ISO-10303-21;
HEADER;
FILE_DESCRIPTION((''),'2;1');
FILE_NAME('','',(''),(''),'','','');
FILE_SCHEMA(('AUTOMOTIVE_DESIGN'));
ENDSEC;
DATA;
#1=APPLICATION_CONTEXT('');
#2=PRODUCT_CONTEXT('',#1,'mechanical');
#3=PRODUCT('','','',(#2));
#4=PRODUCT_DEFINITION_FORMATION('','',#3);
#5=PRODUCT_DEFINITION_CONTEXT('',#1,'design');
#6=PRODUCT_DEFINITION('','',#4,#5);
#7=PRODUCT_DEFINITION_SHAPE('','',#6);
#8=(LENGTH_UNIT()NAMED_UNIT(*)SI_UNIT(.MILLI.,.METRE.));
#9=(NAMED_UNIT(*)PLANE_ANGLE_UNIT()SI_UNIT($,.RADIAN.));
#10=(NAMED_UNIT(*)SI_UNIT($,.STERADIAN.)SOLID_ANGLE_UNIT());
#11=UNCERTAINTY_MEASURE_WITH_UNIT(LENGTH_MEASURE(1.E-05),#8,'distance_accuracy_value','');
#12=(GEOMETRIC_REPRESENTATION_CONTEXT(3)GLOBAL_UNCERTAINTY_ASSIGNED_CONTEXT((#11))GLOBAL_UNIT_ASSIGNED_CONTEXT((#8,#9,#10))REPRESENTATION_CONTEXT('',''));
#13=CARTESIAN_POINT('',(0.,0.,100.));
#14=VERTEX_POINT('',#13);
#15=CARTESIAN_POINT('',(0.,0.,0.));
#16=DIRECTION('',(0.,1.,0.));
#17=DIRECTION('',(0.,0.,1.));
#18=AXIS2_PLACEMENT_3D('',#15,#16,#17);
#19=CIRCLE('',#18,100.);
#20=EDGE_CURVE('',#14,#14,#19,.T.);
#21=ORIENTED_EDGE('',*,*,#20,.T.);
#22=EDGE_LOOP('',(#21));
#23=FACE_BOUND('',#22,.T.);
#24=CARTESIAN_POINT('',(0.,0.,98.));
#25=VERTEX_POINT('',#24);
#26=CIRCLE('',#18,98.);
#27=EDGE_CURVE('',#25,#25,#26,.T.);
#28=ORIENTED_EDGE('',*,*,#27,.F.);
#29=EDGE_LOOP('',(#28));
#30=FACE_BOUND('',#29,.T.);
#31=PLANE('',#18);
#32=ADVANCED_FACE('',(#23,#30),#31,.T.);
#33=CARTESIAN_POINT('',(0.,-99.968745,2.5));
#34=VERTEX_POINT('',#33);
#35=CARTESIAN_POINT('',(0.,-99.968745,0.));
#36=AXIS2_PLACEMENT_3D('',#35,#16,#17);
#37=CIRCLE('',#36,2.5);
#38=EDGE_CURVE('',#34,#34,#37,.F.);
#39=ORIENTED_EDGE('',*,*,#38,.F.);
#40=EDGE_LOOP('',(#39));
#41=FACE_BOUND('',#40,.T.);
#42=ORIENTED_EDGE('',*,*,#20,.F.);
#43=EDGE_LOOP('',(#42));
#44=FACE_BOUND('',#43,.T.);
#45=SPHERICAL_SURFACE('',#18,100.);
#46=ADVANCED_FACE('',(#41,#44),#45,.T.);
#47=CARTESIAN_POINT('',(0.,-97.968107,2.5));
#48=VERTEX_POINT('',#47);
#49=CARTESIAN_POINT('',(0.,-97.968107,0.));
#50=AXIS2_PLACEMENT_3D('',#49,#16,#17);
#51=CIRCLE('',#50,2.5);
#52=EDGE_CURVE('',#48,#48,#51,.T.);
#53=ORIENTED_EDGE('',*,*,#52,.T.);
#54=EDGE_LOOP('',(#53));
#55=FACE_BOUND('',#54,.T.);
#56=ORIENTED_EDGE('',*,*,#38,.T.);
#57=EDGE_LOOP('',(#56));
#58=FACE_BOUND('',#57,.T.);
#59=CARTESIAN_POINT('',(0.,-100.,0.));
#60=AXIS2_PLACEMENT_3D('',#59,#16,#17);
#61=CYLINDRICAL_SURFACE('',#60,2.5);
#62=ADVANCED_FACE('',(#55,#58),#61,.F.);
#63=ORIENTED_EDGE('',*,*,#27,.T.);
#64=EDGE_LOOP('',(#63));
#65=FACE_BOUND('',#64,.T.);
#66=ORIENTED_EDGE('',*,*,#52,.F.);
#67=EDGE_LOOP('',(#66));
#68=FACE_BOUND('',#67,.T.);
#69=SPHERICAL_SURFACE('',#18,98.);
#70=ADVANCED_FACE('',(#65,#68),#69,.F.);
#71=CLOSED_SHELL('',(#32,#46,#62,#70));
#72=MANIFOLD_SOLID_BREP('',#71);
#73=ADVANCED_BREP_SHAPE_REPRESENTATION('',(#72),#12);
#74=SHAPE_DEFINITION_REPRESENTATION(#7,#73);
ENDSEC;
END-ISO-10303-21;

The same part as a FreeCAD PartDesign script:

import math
import FreeCAD as App
import Part
import Sketcher
Q = App.Units.Quantity

doc = App.newDocument("Part")
body = doc.addObject("PartDesign::Body", "Body")

sketch1 = body.newObject("Sketcher::SketchObject", "Sketch")
sketch1.AttachmentSupport = (doc.getObject("XY_Plane"), [""])
sketch1.MapMode = "FlatFace"
sketch1.addGeometry([
    Part.LineSegment(App.Vector(-98, 0, 0), App.Vector(-100, 0, 0)),
    Part.ArcOfCircle(Part.Circle(App.Vector(0, 0, 0), App.Vector(0, 0, 1), 100), math.radians(180), math.radians(360)),
    Part.LineSegment(App.Vector(100, 0, 0), App.Vector(98, 0, 0)),
    Part.ArcOfCircle(Part.Circle(App.Vector(0, 0, 0), App.Vector(0, 0, 1), 98), math.radians(180), math.radians(360)),
], False)
sketch1.addConstraint([
    Sketcher.Constraint("Coincident", 0, 2, 1, 1),
    Sketcher.Constraint("Coincident", 1, 2, 2, 1),
    Sketcher.Constraint("Coincident", 2, 2, 3, 2),
    Sketcher.Constraint("Coincident", 3, 1, 0, 1),
    Sketcher.Constraint("Horizontal", 0),
    Sketcher.Constraint("Horizontal", 2),
    Sketcher.Constraint("Coincident", 1, 3, -1, 1),
    Sketcher.Constraint("Coincident", 3, 3, -1, 1),
    Sketcher.Constraint("PointOnObject", 0, 2, -1),
    Sketcher.Constraint("PointOnObject", 1, 2, -1),
    Sketcher.Constraint("Radius", 1, Q("100 mm")),
    Sketcher.Constraint("Radius", 3, Q("98 mm")),
])
revolution = body.newObject("PartDesign::Revolution", "Revolution")
revolution.Profile = sketch1
revolution.ReferenceAxis = (sketch1, ["H_Axis"])
revolution.Angle = 360

sketch2 = body.newObject("Sketcher::SketchObject", "Sketch001")
sketch2.AttachmentSupport = (doc.getObject("XZ_Plane"), [""])
sketch2.MapMode = "FlatFace"
sketch2.addGeometry(Part.Circle(App.Vector(0, 0, 0), App.Vector(0, 0, 1), 100), False)
sketch2.addConstraint([
    Sketcher.Constraint("Coincident", 0, 3, -1, 1),
    Sketcher.Constraint("Diameter", 0, Q("200 mm")),
])
pocket1 = body.newObject("PartDesign::Pocket", "Pocket")
pocket1.Profile = sketch2
pocket1.Type = "ThroughAll"

sketch3 = body.newObject("Sketcher::SketchObject", "Sketch002")
sketch3.AttachmentSupport = (doc.getObject("XZ_Plane"), [""])
sketch3.MapMode = "FlatFace"
sketch3.addGeometry(Part.Circle(App.Vector(0, 0, 0), App.Vector(0, 0, 1), 2.5), False)
sketch3.addConstraint([
    Sketcher.Constraint("Coincident", 0, 3, -1, 1),
    Sketcher.Constraint("Diameter", 0, Q("5 mm")),
])
pocket2 = body.newObject("PartDesign::Pocket", "Pocket001")
pocket2.Profile = sketch3
pocket2.Type = "ThroughAll"
pocket2.Reversed = True

doc.recompute()
